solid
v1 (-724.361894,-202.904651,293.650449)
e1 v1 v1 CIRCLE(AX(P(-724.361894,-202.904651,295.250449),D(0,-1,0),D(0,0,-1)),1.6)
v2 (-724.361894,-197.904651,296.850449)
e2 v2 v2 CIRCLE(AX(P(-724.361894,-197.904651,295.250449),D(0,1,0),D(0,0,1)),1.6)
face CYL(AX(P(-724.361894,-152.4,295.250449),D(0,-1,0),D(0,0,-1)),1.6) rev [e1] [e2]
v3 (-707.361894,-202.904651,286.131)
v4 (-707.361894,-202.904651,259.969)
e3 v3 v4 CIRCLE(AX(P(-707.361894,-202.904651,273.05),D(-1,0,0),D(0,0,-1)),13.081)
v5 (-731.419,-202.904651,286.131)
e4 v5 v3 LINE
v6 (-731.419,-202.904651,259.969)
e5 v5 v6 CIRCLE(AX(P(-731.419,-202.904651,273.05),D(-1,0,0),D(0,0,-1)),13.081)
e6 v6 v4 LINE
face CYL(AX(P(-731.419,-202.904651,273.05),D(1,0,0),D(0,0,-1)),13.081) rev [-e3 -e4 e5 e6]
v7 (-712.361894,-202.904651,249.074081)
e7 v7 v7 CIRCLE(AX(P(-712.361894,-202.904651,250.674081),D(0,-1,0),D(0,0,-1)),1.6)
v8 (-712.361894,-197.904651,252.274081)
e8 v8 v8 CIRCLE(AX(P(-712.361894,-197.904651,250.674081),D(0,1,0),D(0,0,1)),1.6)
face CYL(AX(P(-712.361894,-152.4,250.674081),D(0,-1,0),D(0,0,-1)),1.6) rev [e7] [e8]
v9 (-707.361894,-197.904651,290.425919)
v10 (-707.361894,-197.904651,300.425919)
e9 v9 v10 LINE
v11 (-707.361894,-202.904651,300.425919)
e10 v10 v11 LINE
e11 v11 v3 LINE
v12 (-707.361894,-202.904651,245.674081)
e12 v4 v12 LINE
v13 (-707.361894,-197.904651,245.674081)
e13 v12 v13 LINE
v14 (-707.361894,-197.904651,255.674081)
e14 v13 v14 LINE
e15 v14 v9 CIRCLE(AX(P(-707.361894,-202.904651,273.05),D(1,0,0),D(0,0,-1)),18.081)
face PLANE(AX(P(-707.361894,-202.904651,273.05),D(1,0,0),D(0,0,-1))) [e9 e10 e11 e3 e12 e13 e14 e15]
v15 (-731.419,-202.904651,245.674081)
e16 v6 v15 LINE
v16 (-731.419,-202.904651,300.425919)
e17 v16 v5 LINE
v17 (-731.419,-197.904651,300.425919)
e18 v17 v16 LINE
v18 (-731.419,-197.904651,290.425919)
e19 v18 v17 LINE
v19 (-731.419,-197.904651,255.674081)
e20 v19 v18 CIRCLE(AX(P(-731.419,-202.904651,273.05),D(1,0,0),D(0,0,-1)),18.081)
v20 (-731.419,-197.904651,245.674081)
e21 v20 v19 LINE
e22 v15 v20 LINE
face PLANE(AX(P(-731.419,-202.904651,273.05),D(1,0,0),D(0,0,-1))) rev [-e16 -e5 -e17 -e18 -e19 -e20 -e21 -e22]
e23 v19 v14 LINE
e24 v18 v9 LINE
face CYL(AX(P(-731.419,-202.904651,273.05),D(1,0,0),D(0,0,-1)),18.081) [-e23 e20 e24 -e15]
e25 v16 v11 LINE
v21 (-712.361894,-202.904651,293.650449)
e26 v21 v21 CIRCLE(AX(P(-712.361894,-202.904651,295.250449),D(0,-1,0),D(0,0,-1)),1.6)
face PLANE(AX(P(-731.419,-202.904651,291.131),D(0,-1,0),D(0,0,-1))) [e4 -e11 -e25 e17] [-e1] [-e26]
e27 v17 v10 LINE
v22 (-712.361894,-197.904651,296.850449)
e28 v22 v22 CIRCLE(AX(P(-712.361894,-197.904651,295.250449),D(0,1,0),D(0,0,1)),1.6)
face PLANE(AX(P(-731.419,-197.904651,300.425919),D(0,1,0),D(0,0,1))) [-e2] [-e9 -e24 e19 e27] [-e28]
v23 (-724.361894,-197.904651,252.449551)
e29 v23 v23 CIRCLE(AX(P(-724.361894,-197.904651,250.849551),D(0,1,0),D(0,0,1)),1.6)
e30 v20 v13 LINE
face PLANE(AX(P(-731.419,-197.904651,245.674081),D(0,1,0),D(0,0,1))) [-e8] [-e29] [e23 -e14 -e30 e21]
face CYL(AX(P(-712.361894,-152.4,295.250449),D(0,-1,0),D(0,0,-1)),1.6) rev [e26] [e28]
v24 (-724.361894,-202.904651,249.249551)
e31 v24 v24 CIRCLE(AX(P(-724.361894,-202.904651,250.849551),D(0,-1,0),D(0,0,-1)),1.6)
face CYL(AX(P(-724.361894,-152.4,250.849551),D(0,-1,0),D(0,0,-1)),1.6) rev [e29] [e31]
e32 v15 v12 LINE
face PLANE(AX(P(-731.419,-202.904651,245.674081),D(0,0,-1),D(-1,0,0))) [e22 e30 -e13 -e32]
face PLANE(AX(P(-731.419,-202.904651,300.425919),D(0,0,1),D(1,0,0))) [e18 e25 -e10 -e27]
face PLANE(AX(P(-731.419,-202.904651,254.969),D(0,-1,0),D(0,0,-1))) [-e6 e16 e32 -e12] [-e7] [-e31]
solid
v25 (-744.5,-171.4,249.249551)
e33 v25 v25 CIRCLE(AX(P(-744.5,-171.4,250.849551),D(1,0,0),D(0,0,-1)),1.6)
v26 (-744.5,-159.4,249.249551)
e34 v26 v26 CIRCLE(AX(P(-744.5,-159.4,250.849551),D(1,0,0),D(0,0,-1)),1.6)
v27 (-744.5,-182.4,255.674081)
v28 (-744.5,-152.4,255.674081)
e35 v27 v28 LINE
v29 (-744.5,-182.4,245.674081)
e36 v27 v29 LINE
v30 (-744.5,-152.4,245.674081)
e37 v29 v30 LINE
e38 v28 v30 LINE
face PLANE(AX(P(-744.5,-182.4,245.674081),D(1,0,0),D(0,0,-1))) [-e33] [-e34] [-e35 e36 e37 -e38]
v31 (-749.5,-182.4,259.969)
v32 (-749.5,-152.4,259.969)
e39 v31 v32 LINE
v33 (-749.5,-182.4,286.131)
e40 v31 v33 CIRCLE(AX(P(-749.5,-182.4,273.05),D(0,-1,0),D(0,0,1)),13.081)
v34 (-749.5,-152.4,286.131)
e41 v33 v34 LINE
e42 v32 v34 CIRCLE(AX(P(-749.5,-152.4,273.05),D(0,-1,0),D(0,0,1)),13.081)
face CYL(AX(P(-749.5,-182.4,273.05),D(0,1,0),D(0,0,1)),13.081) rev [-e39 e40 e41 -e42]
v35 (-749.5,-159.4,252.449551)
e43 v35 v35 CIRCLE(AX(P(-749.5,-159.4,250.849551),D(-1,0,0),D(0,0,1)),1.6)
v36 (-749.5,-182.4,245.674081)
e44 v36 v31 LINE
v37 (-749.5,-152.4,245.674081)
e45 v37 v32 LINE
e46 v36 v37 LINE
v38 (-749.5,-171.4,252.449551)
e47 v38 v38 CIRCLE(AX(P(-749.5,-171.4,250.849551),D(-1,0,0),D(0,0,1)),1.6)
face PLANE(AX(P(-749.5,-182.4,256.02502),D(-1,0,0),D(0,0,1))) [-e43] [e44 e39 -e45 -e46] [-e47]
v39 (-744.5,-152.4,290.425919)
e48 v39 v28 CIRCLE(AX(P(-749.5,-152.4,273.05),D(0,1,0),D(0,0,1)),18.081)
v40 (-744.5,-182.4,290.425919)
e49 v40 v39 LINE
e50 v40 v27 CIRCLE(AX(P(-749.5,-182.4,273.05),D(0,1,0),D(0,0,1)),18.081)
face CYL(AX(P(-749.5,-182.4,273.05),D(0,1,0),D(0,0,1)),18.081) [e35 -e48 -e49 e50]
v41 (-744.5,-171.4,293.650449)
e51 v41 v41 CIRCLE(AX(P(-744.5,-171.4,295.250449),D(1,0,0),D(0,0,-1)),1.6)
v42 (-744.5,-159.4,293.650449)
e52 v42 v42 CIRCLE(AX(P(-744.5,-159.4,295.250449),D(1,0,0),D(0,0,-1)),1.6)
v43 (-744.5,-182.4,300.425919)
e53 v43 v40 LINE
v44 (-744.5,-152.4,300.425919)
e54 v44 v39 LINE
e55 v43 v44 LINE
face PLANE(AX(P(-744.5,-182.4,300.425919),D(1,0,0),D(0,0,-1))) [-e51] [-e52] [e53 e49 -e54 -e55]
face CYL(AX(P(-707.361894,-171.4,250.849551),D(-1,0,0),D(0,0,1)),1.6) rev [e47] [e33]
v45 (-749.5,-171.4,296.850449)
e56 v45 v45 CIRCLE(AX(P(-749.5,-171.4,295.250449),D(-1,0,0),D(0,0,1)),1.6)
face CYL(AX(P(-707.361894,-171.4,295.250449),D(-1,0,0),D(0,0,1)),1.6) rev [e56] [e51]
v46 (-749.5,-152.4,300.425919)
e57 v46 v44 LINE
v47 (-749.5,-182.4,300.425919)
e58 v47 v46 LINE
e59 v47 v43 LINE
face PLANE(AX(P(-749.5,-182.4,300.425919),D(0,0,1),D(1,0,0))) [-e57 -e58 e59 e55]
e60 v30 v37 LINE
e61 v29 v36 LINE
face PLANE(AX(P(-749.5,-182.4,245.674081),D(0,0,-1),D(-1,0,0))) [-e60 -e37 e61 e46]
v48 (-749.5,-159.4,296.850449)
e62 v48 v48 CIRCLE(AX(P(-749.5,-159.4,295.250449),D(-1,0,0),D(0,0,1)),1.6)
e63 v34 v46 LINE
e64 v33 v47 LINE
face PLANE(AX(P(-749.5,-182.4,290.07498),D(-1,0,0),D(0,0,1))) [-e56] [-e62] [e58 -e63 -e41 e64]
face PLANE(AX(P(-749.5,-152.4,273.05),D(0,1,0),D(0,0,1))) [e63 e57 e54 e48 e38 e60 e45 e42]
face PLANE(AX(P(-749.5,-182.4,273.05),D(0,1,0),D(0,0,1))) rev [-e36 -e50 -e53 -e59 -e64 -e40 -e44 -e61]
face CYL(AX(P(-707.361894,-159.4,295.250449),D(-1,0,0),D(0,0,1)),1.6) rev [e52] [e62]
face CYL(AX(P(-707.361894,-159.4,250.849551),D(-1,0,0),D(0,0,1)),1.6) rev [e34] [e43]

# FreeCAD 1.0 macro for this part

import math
import FreeCAD as App
import Part
import Sketcher
Q = App.Units.Quantity

doc = App.newDocument("Part")
body = doc.addObject("PartDesign::Body", "Body")

sketch1 = doc.addObject("Sketcher::SketchObject", "Sketch")
body.addObject(sketch1)
sketch1.AttachmentSupport = (doc.XZ_Plane, [""])
sketch1.MapMode = "FlatFace"
sketch1.AttachmentOffset = App.Placement(App.Vector(0, 0, 152.4), App.Rotation())
sketch1.addGeometry(Part.ArcOfCircle(Part.Circle(App.Vector(-750, 273, 0), App.Vector(0, 0, 1), 13), math.radians(-90), math.radians(90)), False)
sketch1.addGeometry(Part.LineSegment(App.Vector(-750, 286, 0), App.Vector(-750, 300, 0)), False)
sketch1.addGeometry(Part.LineSegment(App.Vector(-750, 300, 0), App.Vector(-744, 300, 0)), False)
sketch1.addGeometry(Part.LineSegment(App.Vector(-744, 300, 0), App.Vector(-744, 290, 0)), False)
sketch1.addGeometry(Part.ArcOfCircle(Part.Circle(App.Vector(-750, 273, 0), App.Vector(0, 0, 1), 18), math.radians(-74), math.radians(74)), False)
sketch1.addGeometry(Part.LineSegment(App.Vector(-744, 256, 0), App.Vector(-744, 246, 0)), False)
sketch1.addGeometry(Part.LineSegment(App.Vector(-744, 246, 0), App.Vector(-750, 246, 0)), False)
sketch1.addGeometry(Part.LineSegment(App.Vector(-750, 246, 0), App.Vector(-750, 260, 0)), False)
sketch1.addConstraint(Sketcher.Constraint("Coincident", 0, 2, 1, 1))
sketch1.addConstraint(Sketcher.Constraint("Coincident", 1, 2, 2, 1))
sketch1.addConstraint(Sketcher.Constraint("Coincident", 2, 2, 3, 1))
sketch1.addConstraint(Sketcher.Constraint("Coincident", 3, 2, 4, 2))
sketch1.addConstraint(Sketcher.Constraint("Coincident", 4, 1, 5, 1))
sketch1.addConstraint(Sketcher.Constraint("Coincident", 5, 2, 6, 1))
sketch1.addConstraint(Sketcher.Constraint("Coincident", 6, 2, 7, 1))
sketch1.addConstraint(Sketcher.Constraint("Coincident", 7, 2, 0, 1))
sketch1.addConstraint(Sketcher.Constraint("Vertical", 1))
sketch1.addConstraint(Sketcher.Constraint("Horizontal", 2))
sketch1.addConstraint(Sketcher.Constraint("Vertical", 3))
sketch1.addConstraint(Sketcher.Constraint("Vertical", 5))
sketch1.addConstraint(Sketcher.Constraint("Horizontal", 6))
sketch1.addConstraint(Sketcher.Constraint("Vertical", 7))
sketch1.addConstraint(Sketcher.Constraint("Coincident", 4, 3, 0, 3))
sketch1.addConstraint(Sketcher.Constraint("Vertical", 4, 3, 0, 2))
sketch1.addConstraint(Sketcher.Constraint("Vertical", 3, 2, 4, 1))
sketch1.addConstraint(Sketcher.Constraint("Vertical", 1, 2, 6, 2))
sketch1.addConstraint(Sketcher.Constraint("Equal", 3, 5))
sketch1.addConstraint(Sketcher.Constraint("DistanceX", 2, 1, 2, 2, Q("5 mm")))
sketch1.addConstraint(Sketcher.Constraint("DistanceY", 3, 2, 3, 1, Q("10 mm")))
sketch1.addConstraint(Sketcher.Constraint("Radius", 0, Q("13.081 mm")))
sketch1.addConstraint(Sketcher.Constraint("Radius", 4, Q("18.081 mm")))
sketch1.addConstraint(Sketcher.Constraint("DistanceX", 0, 3, -1, 1, Q("749.5 mm")))
sketch1.addConstraint(Sketcher.Constraint("DistanceY", -1, 1, 0, 3, Q("273.05 mm")))
pad1 = doc.addObject("PartDesign::Pad", "Pad")
body.addObject(pad1)
pad1.Profile = sketch1
pad1.Length = 30

sketch2 = doc.addObject("Sketcher::SketchObject", "Sketch001")
body.addObject(sketch2)
sketch2.AttachmentSupport = (doc.YZ_Plane, [""])
sketch2.MapMode = "FlatFace"
sketch2.AttachmentOffset = App.Placement(App.Vector(0, 0, -749.5), App.Rotation())
sketch2.addGeometry(Part.Circle(App.Vector(-159.4, 295.3, 0), App.Vector(0, 0, 1), 1.6), False)
sketch2.addGeometry(Part.Circle(App.Vector(-171.4, 295.3, 0), App.Vector(0, 0, 1), 1.6), False)
sketch2.addGeometry(Part.Circle(App.Vector(-171.4, 250.8, 0), App.Vector(0, 0, 1), 1.6), False)
sketch2.addGeometry(Part.Circle(App.Vector(-159.4, 250.8, 0), App.Vector(0, 0, 1), 1.6), False)
sketch2.addConstraint(Sketcher.Constraint("Equal", 0, 1))
sketch2.addConstraint(Sketcher.Constraint("Equal", 1, 2))
sketch2.addConstraint(Sketcher.Constraint("Equal", 2, 3))
sketch2.addConstraint(Sketcher.Constraint("Horizontal", 0, 3, 1, 3))
sketch2.addConstraint(Sketcher.Constraint("Horizontal", 2, 3, 3, 3))
sketch2.addConstraint(Sketcher.Constraint("Vertical", 1, 3, 2, 3))
sketch2.addConstraint(Sketcher.Constraint("Vertical", 0, 3, 3, 3))
sketch2.addConstraint(Sketcher.Constraint("Diameter", 0, Q("3.2 mm")))
sketch2.addConstraint(Sketcher.Constraint("DistanceX", 1, 3, 0, 3, Q("12 mm")))
sketch2.addConstraint(Sketcher.Constraint("DistanceX", 0, 3, -1, 1, Q("159.4 mm")))
sketch2.addConstraint(Sketcher.Constraint("DistanceY", 2, 3, 1, 3, Q("44.400899 mm")))
sketch2.addConstraint(Sketcher.Constraint("DistanceY", -1, 1, 0, 3, Q("295.250449 mm")))
pocket1 = doc.addObject("PartDesign::Pocket", "Pocket")
body.addObject(pocket1)
pocket1.Profile = sketch2
pocket1.Type = "ThroughAll"
pocket1.Reversed = True
body2 = doc.addObject("PartDesign::Body", "Body001")

sketch3 = doc.addObject("Sketcher::SketchObject", "Sketch002")
body2.addObject(sketch3)
sketch3.AttachmentSupport = (doc.getObject("YZ_Plane001"), [""])
sketch3.MapMode = "FlatFace"
sketch3.AttachmentOffset = App.Placement(App.Vector(0, 0, -707.361894), App.Rotation())
sketch3.addGeometry(Part.LineSegment(App.Vector(-198, 300, 0), App.Vector(-203, 300, 0)), False)
sketch3.addGeometry(Part.LineSegment(App.Vector(-203, 300, 0), App.Vector(-203, 286, 0)), False)
sketch3.addGeometry(Part.ArcOfCircle(Part.Circle(App.Vector(-203, 273, 0), App.Vector(0, 0, 1), 13), math.radians(-90), math.radians(90)), False)
sketch3.addGeometry(Part.LineSegment(App.Vector(-203, 260, 0), App.Vector(-203, 246, 0)), False)
sketch3.addGeometry(Part.LineSegment(App.Vector(-203, 246, 0), App.Vector(-198, 246, 0)), False)
sketch3.addGeometry(Part.LineSegment(App.Vector(-198, 246, 0), App.Vector(-198, 256, 0)), False)
sketch3.addGeometry(Part.ArcOfCircle(Part.Circle(App.Vector(-203, 273, 0), App.Vector(0, 0, 1), 18), math.radians(-74), math.radians(74)), False)
sketch3.addGeometry(Part.LineSegment(App.Vector(-198, 290, 0), App.Vector(-198, 300, 0)), False)
sketch3.addConstraint(Sketcher.Constraint("Coincident", 0, 2, 1, 1))
sketch3.addConstraint(Sketcher.Constraint("Coincident", 1, 2, 2, 2))
sketch3.addConstraint(Sketcher.Constraint("Coincident", 2, 1, 3, 1))
sketch3.addConstraint(Sketcher.Constraint("Coincident", 3, 2, 4, 1))
sketch3.addConstraint(Sketcher.Constraint("Coincident", 4, 2, 5, 1))
sketch3.addConstraint(Sketcher.Constraint("Coincident", 5, 2, 6, 1))
sketch3.addConstraint(Sketcher.Constraint("Coincident", 6, 2, 7, 1))
sketch3.addConstraint(Sketcher.Constraint("Coincident", 7, 2, 0, 1))
sketch3.addConstraint(Sketcher.Constraint("Horizontal", 0))
sketch3.addConstraint(Sketcher.Constraint("Vertical", 1))
sketch3.addConstraint(Sketcher.Constraint("Vertical", 3))
sketch3.addConstraint(Sketcher.Constraint("Horizontal", 4))
sketch3.addConstraint(Sketcher.Constraint("Vertical", 5))
sketch3.addConstraint(Sketcher.Constraint("Vertical", 7))
sketch3.addConstraint(Sketcher.Constraint("Coincident", 6, 3, 2, 3))
sketch3.addConstraint(Sketcher.Constraint("Vertical", 6, 3, 0, 2))
sketch3.addConstraint(Sketcher.Constraint("Vertical", 1, 2, 2, 1))
sketch3.addConstraint(Sketcher.Constraint("Vertical", 5, 2, 6, 2))
sketch3.addConstraint(Sketcher.Constraint("Equal", 1, 3))
sketch3.addConstraint(Sketcher.Constraint("DistanceX", 0, 2, 0, 1, Q("5 mm")))
sketch3.addConstraint(Sketcher.Constraint("DistanceY", 5, 1, 5, 2, Q("10 mm")))
sketch3.addConstraint(Sketcher.Constraint("Radius", 2, Q("13.081 mm")))
sketch3.addConstraint(Sketcher.Constraint("Radius", 6, Q("18.081 mm")))
sketch3.addConstraint(Sketcher.Constraint("DistanceY", -1, 1, 2, 3, Q("273.05 mm")))
sketch3.addConstraint(Sketcher.Constraint("DistanceX", 2, 3, -1, 1, Q("202.904651 mm")))
pad2 = doc.addObject("PartDesign::Pad", "Pad001")
body2.addObject(pad2)
pad2.Profile = sketch3
pad2.Length = 24.057106
pad2.Reversed = True

sketch4 = doc.addObject("Sketcher::SketchObject", "Sketch003")
body2.addObject(sketch4)
sketch4.AttachmentSupport = (doc.getObject("XZ_Plane001"), [""])
sketch4.MapMode = "FlatFace"
sketch4.AttachmentOffset = App.Placement(App.Vector(0, 0, 202.904651), App.Rotation())
sketch4.addGeometry(Part.Circle(App.Vector(-724.4, 295.3, 0), App.Vector(0, 0, 1), 1.6), False)
sketch4.addGeometry(Part.Circle(App.Vector(-712.4, 295.3, 0), App.Vector(0, 0, 1), 1.6), False)
sketch4.addGeometry(Part.Circle(App.Vector(-712.4, 250.7, 0), App.Vector(0, 0, 1), 1.6), False)
sketch4.addGeometry(Part.Circle(App.Vector(-724.4, 250.8, 0), App.Vector(0, 0, 1), 1.6), False)
sketch4.addConstraint(Sketcher.Constraint("Equal", 0, 1))
sketch4.addConstraint(Sketcher.Constraint("Equal", 1, 2))
sketch4.addConstraint(Sketcher.Constraint("Equal", 2, 3))
sketch4.addConstraint(Sketcher.Constraint("Horizontal", 0, 3, 1, 3))
sketch4.addConstraint(Sketcher.Constraint("Vertical", 1, 3, 2, 3))
sketch4.addConstraint(Sketcher.Constraint("Vertical", 0, 3, 3, 3))
sketch4.addConstraint(Sketcher.Constraint("Diameter", 0, Q("3.2 mm")))
sketch4.addConstraint(Sketcher.Constraint("DistanceX", 0, 3, 1, 3, Q("12 mm")))
sketch4.addConstraint(Sketcher.Constraint("DistanceY", 3, 3, 0, 3, Q("44.400899 mm")))
sketch4.addConstraint(Sketcher.Constraint("DistanceY", -1, 1, 0, 3, Q("295.250449 mm")))
sketch4.addConstraint(Sketcher.Constraint("DistanceY", -1, 1, 2, 3, Q("250.674081 mm")))
sketch4.addConstraint(Sketcher.Constraint("DistanceX", 0, 3, -1, 1, Q("724.361894 mm")))
pocket2 = doc.addObject("PartDesign::Pocket", "Pocket001")
body2.addObject(pocket2)
pocket2.Profile = sketch4
pocket2.Type = "ThroughAll"

doc.recompute()
